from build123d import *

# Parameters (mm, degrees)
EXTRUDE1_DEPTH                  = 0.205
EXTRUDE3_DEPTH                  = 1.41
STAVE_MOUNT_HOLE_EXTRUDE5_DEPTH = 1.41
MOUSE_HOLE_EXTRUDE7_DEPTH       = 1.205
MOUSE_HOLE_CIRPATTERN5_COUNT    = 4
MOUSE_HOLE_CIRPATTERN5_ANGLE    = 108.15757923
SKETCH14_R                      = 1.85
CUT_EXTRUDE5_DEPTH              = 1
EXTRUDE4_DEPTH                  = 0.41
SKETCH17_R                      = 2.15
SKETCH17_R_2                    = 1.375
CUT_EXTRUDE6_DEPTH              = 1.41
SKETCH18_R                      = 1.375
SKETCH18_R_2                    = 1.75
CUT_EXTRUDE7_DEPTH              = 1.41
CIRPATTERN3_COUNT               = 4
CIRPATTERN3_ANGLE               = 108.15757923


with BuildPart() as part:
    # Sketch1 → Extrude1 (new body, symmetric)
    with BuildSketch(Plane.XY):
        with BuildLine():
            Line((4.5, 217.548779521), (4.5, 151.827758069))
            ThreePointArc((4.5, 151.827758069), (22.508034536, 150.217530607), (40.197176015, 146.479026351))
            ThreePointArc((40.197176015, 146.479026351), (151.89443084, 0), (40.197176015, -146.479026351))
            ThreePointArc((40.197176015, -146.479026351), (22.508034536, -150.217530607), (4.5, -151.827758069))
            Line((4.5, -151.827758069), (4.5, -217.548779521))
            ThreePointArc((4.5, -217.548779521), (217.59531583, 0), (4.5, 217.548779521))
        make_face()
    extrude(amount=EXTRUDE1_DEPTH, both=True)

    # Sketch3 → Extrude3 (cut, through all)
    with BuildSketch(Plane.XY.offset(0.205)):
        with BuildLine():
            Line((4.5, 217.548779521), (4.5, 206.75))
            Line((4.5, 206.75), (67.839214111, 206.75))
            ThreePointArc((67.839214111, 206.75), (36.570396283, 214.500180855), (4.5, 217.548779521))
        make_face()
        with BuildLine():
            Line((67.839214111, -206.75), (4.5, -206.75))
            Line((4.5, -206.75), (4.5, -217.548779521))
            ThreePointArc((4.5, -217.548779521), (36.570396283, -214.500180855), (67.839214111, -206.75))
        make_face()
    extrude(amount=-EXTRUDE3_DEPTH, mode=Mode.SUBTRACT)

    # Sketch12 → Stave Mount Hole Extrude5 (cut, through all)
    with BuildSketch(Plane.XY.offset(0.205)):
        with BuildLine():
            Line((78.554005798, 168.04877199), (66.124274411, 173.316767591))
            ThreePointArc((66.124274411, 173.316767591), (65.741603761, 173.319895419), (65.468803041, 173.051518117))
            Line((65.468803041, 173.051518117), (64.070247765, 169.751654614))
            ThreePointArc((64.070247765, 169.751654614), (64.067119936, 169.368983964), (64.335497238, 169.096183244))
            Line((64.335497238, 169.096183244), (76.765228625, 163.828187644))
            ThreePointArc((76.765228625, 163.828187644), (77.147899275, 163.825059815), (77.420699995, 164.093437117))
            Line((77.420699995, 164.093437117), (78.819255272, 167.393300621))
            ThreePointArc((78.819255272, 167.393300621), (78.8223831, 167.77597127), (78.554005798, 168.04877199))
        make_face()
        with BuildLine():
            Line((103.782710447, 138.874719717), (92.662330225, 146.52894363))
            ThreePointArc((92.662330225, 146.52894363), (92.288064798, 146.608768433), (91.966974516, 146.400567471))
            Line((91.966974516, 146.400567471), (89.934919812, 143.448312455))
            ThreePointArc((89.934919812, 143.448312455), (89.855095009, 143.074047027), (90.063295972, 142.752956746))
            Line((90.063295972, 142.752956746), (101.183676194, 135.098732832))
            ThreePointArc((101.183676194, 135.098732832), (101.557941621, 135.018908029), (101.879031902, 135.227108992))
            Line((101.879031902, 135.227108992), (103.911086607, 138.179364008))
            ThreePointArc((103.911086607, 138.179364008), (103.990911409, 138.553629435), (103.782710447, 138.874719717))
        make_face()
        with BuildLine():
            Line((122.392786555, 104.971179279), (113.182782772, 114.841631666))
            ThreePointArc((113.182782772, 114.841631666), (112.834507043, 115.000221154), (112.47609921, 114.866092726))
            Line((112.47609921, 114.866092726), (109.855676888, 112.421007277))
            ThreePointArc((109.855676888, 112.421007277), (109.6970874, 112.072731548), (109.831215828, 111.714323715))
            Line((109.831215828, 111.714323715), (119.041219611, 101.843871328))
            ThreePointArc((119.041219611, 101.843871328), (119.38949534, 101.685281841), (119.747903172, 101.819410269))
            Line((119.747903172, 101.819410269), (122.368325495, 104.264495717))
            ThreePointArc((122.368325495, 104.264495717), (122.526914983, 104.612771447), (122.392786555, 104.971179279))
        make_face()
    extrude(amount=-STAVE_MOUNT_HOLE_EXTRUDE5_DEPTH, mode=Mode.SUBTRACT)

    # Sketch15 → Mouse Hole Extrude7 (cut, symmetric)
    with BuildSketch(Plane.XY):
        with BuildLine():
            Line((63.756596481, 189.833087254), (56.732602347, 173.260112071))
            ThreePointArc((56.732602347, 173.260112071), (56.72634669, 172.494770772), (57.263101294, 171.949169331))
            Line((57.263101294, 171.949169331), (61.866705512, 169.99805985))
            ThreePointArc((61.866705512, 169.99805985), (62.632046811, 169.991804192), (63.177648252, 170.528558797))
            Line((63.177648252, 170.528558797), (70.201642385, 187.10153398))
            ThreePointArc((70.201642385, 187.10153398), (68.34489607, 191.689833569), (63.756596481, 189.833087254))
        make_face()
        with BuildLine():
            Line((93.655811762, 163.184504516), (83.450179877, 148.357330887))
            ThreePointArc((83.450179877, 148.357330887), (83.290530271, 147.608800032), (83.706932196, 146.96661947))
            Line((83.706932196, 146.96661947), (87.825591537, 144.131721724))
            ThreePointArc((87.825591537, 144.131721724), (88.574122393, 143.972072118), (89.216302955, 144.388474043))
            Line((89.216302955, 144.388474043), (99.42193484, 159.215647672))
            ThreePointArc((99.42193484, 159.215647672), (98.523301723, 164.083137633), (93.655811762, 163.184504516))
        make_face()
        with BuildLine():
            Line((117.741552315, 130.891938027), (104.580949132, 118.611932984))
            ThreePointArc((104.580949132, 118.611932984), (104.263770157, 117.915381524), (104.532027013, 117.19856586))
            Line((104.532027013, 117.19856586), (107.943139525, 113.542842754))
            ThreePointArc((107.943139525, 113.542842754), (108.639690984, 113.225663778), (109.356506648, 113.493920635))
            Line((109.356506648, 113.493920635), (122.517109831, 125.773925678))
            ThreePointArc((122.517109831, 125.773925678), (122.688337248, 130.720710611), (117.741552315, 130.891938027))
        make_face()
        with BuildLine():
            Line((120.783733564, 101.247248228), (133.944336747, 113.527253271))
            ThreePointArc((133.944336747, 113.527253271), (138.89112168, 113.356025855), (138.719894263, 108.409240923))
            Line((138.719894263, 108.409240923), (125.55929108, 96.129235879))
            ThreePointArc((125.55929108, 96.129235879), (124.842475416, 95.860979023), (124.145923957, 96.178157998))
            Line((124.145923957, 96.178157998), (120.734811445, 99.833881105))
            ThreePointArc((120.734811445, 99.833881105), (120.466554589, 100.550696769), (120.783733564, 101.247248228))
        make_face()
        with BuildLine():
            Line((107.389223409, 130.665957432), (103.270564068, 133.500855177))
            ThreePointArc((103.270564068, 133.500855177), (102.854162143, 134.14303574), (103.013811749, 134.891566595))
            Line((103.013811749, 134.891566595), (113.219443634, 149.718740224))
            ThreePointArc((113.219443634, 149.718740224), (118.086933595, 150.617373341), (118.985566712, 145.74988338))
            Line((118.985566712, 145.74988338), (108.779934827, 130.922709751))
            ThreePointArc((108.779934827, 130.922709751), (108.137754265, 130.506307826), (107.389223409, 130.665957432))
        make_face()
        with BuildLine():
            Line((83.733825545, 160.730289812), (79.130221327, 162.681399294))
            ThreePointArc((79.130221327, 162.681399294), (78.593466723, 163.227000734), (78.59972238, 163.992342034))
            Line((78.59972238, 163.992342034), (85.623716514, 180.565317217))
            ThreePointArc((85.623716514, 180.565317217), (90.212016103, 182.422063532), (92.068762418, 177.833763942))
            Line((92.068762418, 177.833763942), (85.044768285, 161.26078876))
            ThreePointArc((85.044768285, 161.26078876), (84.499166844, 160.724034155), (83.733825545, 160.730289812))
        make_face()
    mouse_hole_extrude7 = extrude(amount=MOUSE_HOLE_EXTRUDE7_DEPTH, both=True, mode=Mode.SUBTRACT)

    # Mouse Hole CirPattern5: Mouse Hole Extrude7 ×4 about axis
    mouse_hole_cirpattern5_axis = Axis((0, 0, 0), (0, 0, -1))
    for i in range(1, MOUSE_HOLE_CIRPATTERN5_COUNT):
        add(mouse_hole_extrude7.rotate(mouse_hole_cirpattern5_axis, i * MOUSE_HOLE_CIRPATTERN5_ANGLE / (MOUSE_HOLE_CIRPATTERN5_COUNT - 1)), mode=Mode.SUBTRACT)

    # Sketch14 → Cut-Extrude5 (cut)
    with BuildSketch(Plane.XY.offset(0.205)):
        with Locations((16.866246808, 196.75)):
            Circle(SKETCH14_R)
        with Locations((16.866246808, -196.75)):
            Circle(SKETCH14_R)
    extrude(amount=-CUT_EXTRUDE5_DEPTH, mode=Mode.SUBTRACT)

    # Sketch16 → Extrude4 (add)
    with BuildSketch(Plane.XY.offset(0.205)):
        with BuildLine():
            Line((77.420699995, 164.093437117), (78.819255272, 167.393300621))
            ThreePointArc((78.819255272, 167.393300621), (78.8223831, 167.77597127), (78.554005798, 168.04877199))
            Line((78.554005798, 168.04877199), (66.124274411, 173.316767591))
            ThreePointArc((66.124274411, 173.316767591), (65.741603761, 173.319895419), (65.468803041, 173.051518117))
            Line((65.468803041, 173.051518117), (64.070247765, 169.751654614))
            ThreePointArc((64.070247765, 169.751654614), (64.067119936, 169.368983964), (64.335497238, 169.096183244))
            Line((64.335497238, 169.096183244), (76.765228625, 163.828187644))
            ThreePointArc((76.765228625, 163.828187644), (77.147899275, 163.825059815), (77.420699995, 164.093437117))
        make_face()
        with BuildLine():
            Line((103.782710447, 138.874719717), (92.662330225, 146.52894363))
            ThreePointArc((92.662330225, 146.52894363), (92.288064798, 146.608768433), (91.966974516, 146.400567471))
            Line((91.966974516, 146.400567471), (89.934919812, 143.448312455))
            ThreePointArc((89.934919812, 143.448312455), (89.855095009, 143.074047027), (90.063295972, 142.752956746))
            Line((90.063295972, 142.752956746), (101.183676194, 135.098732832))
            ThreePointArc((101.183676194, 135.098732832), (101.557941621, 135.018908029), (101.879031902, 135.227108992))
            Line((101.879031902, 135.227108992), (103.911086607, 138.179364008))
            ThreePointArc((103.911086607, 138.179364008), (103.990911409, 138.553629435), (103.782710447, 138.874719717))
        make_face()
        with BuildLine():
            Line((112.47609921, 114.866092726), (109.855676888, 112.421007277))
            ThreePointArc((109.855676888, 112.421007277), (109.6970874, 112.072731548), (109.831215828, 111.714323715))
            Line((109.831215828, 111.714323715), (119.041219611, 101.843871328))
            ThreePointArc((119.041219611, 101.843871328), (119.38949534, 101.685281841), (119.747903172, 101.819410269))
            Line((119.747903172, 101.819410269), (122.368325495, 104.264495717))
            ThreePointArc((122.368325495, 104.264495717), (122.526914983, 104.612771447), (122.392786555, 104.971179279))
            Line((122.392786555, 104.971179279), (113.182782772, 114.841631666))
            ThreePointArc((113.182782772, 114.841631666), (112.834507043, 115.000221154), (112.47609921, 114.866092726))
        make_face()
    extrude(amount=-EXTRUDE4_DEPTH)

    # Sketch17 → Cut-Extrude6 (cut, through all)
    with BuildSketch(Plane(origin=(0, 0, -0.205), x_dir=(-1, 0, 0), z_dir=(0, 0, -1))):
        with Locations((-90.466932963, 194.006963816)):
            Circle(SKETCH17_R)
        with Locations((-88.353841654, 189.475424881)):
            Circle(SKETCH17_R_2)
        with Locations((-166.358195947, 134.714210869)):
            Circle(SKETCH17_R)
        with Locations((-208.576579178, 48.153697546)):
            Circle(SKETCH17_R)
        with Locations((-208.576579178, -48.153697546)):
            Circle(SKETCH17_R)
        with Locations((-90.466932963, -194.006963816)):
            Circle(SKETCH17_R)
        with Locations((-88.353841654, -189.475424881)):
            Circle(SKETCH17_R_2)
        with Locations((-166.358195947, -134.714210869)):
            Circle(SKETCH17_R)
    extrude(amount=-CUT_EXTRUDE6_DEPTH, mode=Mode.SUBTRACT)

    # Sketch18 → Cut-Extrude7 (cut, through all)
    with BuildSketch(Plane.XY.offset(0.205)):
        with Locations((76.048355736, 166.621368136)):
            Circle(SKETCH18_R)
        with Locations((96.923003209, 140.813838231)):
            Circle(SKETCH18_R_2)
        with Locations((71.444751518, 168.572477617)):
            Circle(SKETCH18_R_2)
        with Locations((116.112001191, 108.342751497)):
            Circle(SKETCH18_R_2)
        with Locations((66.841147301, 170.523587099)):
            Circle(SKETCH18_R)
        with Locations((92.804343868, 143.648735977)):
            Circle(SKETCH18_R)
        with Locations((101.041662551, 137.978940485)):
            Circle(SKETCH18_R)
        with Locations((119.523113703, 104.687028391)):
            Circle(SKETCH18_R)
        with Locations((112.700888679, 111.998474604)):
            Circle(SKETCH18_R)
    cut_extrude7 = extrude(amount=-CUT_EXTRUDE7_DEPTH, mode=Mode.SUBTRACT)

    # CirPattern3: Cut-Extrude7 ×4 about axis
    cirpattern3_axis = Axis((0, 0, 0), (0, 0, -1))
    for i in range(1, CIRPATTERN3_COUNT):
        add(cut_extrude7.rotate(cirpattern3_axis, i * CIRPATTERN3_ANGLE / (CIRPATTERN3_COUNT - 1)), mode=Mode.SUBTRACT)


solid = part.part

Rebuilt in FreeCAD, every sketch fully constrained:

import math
import FreeCAD as App
import Part
import Sketcher
from FreeCAD import Vector
Q = App.Units.Quantity

doc = App.newDocument("Part")
params = doc.addObject("Spreadsheet::Sheet", "Params")
for row, (alias, value) in enumerate([
    ("pad1_length", "0.41 mm"),
    ("sketch3_radius", "0.5 mm"),
    ("sketch3_length", "13.5 mm"),
    ("sketch4_radius", "1 mm"),
    ("sketch4_radius2", "3.5 mm"),
    ("sketch4_length", "18 mm"),
    ("pocket3_length", "2.41 mm"),
    ("sketch5_diameter", "3.7 mm"),
    ("pocket4_length", "1 mm"),
    ("sketch6_radius", "0.5 mm"),
    ("sketch6_length", "13.5 mm"),
    ("pad2_length", "0.41 mm"),
    ("sketch7_diameter", "4.3 mm"),
    ("sketch7_diameter2", "2.75 mm"),
    ("sketch8_diameter", "3.5 mm"),
    ("sketch8_diameter2", "2.75 mm"),
], start=1):
    params.set(f"A{row}", alias)
    params.set(f"B{row}", "=" + value)
    params.setAlias(f"B{row}", alias)

body = doc.addObject("PartDesign::Body", "Body")

# Sketch on XY plane
sketch1 = doc.addObject("Sketcher::SketchObject", "Sketch")
body.addObject(sketch1)
sketch1.AttachmentSupport = (doc.XY_Plane, [""])
sketch1.MapMode = "FlatFace"
sketch1.addGeometry([
    Part.LineSegment(Vector(4.5, 217.54878, 0), Vector(4.5, 151.827758, 0)),  # 0
    Part.ArcOfCircle(Part.Circle(Vector(0, 0, 0), Vector(0, 0, 1), 151.894431), math.radians(74.654502), math.radians(88.302316)),  # 1
    Part.ArcOfCircle(Part.Circle(Vector(0, 0, 0), Vector(0, 0, 1), 151.894431), math.radians(-74.654502), math.radians(74.654502)),  # 2
    Part.ArcOfCircle(Part.Circle(Vector(0, 0, 0), Vector(0, 0, 1), 151.894431), math.radians(-88.302316), math.radians(-74.654502)),  # 3
    Part.LineSegment(Vector(4.5, -151.827758, 0), Vector(4.5, -217.54878, 0)),  # 4
    Part.ArcOfCircle(Part.Circle(Vector(0, 0, 0), Vector(0, 0, 1), 217.595316), math.radians(-88.815005), math.radians(88.815005)),  # 5
], False)
sketch1.addConstraint([
    Sketcher.Constraint("Coincident", 0, 2, 1, 2),
    Sketcher.Constraint("Tangent", 1, 1, 2, 2),
    Sketcher.Constraint("Tangent", 2, 1, 3, 2),
    Sketcher.Constraint("Coincident", 3, 1, 4, 1),
    Sketcher.Constraint("Coincident", 4, 2, 5, 1),
    Sketcher.Constraint("Coincident", 5, 2, 0, 1),
    Sketcher.Constraint("Vertical", 0),
    Sketcher.Constraint("Vertical", 4),
    Sketcher.Constraint("Coincident", 1, 3, -1, 1),
    Sketcher.Constraint("Coincident", 3, 3, -1, 1),
    Sketcher.Constraint("Coincident", 5, 3, -1, 1),
    Sketcher.Constraint("Vertical", 1, 1, 2, 1),
    Sketcher.Constraint("Vertical", 0, 2, 3, 1),
    Sketcher.Constraint("DistanceX", -1, 1, 0, 2, Q("4.5 mm")),
    Sketcher.Constraint("Radius", 1, Q("151.894431 mm")),
    Sketcher.Constraint("Radius", 5, Q("217.595316 mm")),
    Sketcher.Constraint("DistanceY", 1, 1, 0, 2, Q("5.348732 mm")),
])
pad1 = doc.addObject("PartDesign::Pad", "Pad")
body.addObject(pad1)
pad1.Profile = sketch1
pad1.setExpression("Length", "Params.pad1_length")
pad1.Midplane = True

# Sketch on XY plane
sketch2 = doc.addObject("Sketcher::SketchObject", "Sketch001")
body.addObject(sketch2)
sketch2.AttachmentSupport = (doc.XY_Plane, [""])
sketch2.MapMode = "FlatFace"
sketch2.AttachmentOffset = App.Placement(Vector(0, 0, 0.205), App.Rotation())
sketch2.addGeometry([
    Part.LineSegment(Vector(4.5, 217.54878, 0), Vector(4.5, 206.75, 0)),  # 0
    Part.LineSegment(Vector(4.5, 206.75, 0), Vector(67.839214, 206.75, 0)),  # 1
    Part.ArcOfCircle(Part.Circle(Vector(0, 0, 0), Vector(0, 0, 1), 217.595316), math.radians(71.834201), math.radians(88.815005)),  # 2
    Part.LineSegment(Vector(67.839214, -206.75, 0), Vector(4.5, -206.75, 0)),  # 3
    Part.LineSegment(Vector(4.5, -206.75, 0), Vector(4.5, -217.54878, 0)),  # 4
    Part.ArcOfCircle(Part.Circle(Vector(0, 0, 0), Vector(0, 0, 1), 217.595316), math.radians(-88.815005), math.radians(-71.834201)),  # 5
], False)
sketch2.addConstraint([
    Sketcher.Constraint("Coincident", 0, 2, 1, 1),
    Sketcher.Constraint("Coincident", 1, 2, 2, 1),
    Sketcher.Constraint("Coincident", 2, 2, 0, 1),
    Sketcher.Constraint("Coincident", 3, 2, 4, 1),
    Sketcher.Constraint("Coincident", 4, 2, 5, 1),
    Sketcher.Constraint("Coincident", 5, 2, 3, 1),
    Sketcher.Constraint("Vertical", 0),
    Sketcher.Constraint("Horizontal", 1),
    Sketcher.Constraint("Horizontal", 3),
    Sketcher.Constraint("Vertical", 4),
    Sketcher.Constraint("Coincident", 2, 3, -1, 1),
    Sketcher.Constraint("Coincident", 5, 3, -1, 1),
    Sketcher.Constraint("Equal", 2, 5),
    Sketcher.Constraint("Symmetric", 0, 2, 3, 2, -1),
    Sketcher.Constraint("DistanceX", -1, 1, 0, 2, Q("4.5 mm")),
    Sketcher.Constraint("DistanceY", 3, 2, 0, 2, Q("413.5 mm")),
    Sketcher.Constraint("Radius", 2, Q("217.595316 mm")),
])
pocket1 = doc.addObject("PartDesign::Pocket", "Pocket")
body.addObject(pocket1)
pocket1.Profile = sketch2
pocket1.Type = "ThroughAll"

# Sketch on XY plane
sketch3 = doc.addObject("Sketcher::SketchObject", "Sketch002")
body.addObject(sketch3)
sketch3.AttachmentSupport = (doc.XY_Plane, [""])
sketch3.MapMode = "FlatFace"
sketch3.AttachmentOffset = App.Placement(Vector(0, 0, 0.205), App.Rotation())
sketch3.addGeometry([
    Part.LineSegment(Vector(78.554006, 168.048772, 0), Vector(66.124274, 173.316768, 0)),  # 0
    Part.ArcOfCircle(Part.Circle(Vector(65.929163, 172.856407, 0), Vector(0, 0, 1), 0.5), math.radians(67.031693), math.radians(157.031693)),  # 1
    Part.LineSegment(Vector(65.468803, 173.051518, 0), Vector(64.070248, 169.751655, 0)),  # 2
    Part.ArcOfCircle(Part.Circle(Vector(64.530608, 169.556544, 0), Vector(0, 0, 1), 0.5), math.radians(157.031693), math.radians(247.031693)),  # 3
    Part.LineSegment(Vector(64.335497, 169.096183, 0), Vector(76.765229, 163.828188, 0)),  # 4
    Part.ArcOfCircle(Part.Circle(Vector(76.96034, 164.288548, 0), Vector(0, 0, 1), 0.5), math.radians(-112.968307), math.radians(-22.968307)),  # 5
    Part.LineSegment(Vector(77.4207, 164.093437, 0), Vector(78.819255, 167.393301, 0)),  # 6
    Part.ArcOfCircle(Part.Circle(Vector(78.358895, 167.588412, 0), Vector(0, 0, 1), 0.5), math.radians(-22.968307), math.radians(67.031693)),  # 7
    Part.LineSegment(Vector(103.78271, 138.87472, 0), Vector(92.66233, 146.528944, 0)),  # 8
    Part.ArcOfCircle(Part.Circle(Vector(92.37884, 146.117078, 0), Vector(0, 0, 1), 0.5), math.radians(55.460132), math.radians(145.460132)),  # 9
    Part.LineSegment(Vector(91.966975, 146.400567, 0), Vector(89.93492, 143.448312, 0)),  # 10
    Part.ArcOfCircle(Part.Circle(Vector(90.346786, 143.164823, 0), Vector(0, 0, 1), 0.5), math.radians(145.460132), math.radians(235.460132)),  # 11
    Part.LineSegment(Vector(90.063296, 142.752957, 0), Vector(101.183676, 135.098733, 0)),  # 12
    Part.ArcOfCircle(Part.Circle(Vector(101.467166, 135.510599, 0), Vector(0, 0, 1), 0.5), math.radians(-124.539868), math.radians(-34.539868)),  # 13
    Part.LineSegment(Vector(101.879032, 135.227109, 0), Vector(103.911087, 138.179364, 0)),  # 14
    Part.ArcOfCircle(Part.Circle(Vector(103.499221, 138.462854, 0), Vector(0, 0, 1), 0.5), math.radians(-34.539868), math.radians(55.460132)),  # 15
    Part.LineSegment(Vector(122.392787, 104.971179, 0), Vector(113.182783, 114.841632, 0)),  # 16
    Part.ArcOfCircle(Part.Circle(Vector(112.81721, 114.50052, 0), Vector(0, 0, 1), 0.5), math.radians(43.017562), math.radians(133.017562)),  # 17
    Part.LineSegment(Vector(112.476099, 114.866093, 0), Vector(109.855677, 112.421007, 0)),  # 18
    Part.ArcOfCircle(Part.Circle(Vector(110.196788, 112.055435, 0), Vector(0, 0, 1), 0.5), math.radians(133.017562), math.radians(223.017562)),  # 19
    Part.LineSegment(Vector(109.831216, 111.714324, 0), Vector(119.04122, 101.843871, 0)),  # 20
    Part.ArcOfCircle(Part.Circle(Vector(119.406792, 102.184983, 0), Vector(0, 0, 1), 0.5), math.radians(-136.982438), math.radians(-46.982438)),  # 21
    Part.LineSegment(Vector(119.747903, 101.81941, 0), Vector(122.368325, 104.264496, 0)),  # 22
    Part.ArcOfCircle(Part.Circle(Vector(122.027214, 104.630068, 0), Vector(0, 0, 1), 0.5), math.radians(-46.982438), math.radians(43.017562)),  # 23
], False)
sketch3.addConstraint([
    Sketcher.Constraint("Tangent", 0, 2, 1, 1),
    Sketcher.Constraint("Tangent", 1, 2, 2, 1),
    Sketcher.Constraint("Tangent", 2, 2, 3, 1),
    Sketcher.Constraint("Tangent", 3, 2, 4, 1),
    Sketcher.Constraint("Tangent", 4, 2, 5, 1),
    Sketcher.Constraint("Tangent", 5, 2, 6, 1),
    Sketcher.Constraint("Tangent", 6, 2, 7, 1),
    Sketcher.Constraint("Tangent", 7, 2, 0, 1),
    Sketcher.Constraint("Tangent", 8, 2, 9, 1),
    Sketcher.Constraint("Tangent", 9, 2, 10, 1),
    Sketcher.Constraint("Tangent", 10, 2, 11, 1),
    Sketcher.Constraint("Tangent", 11, 2, 12, 1),
    Sketcher.Constraint("Tangent", 12, 2, 13, 1),
    Sketcher.Constraint("Tangent", 13, 2, 14, 1),
    Sketcher.Constraint("Tangent", 14, 2, 15, 1),
    Sketcher.Constraint("Tangent", 15, 2, 8, 1),
    Sketcher.Constraint("Tangent", 16, 2, 17, 1),
    Sketcher.Constraint("Tangent", 17, 2, 18, 1),
    Sketcher.Constraint("Tangent", 18, 2, 19, 1),
    Sketcher.Constraint("Tangent", 19, 2, 20, 1),
    Sketcher.Constraint("Tangent", 20, 2, 21, 1),
    Sketcher.Constraint("Tangent", 21, 2, 22, 1),
    Sketcher.Constraint("Tangent", 22, 2, 23, 1),
    Sketcher.Constraint("Tangent", 23, 2, 16, 1),
    Sketcher.Constraint("Equal", 1, 3),
    Sketcher.Constraint("Equal", 3, 5),
    Sketcher.Constraint("Equal", 5, 7),
    Sketcher.Constraint("Equal", 7, 9),
    Sketcher.Constraint("Equal", 9, 11),
    Sketcher.Constraint("Equal", 11, 13),
    Sketcher.Constraint("Equal", 13, 15),
    Sketcher.Constraint("Equal", 15, 17),
    Sketcher.Constraint("Equal", 17, 19),
    Sketcher.Constraint("Equal", 19, 21),
    Sketcher.Constraint("Equal", 21, 23),
    Sketcher.Constraint("Perpendicular", 0, 2),
    Sketcher.Constraint("Perpendicular", 2, 4),
    Sketcher.Constraint("Perpendicular", 4, 6),
    Sketcher.Constraint("Perpendicular", 8, 10),
    Sketcher.Constraint("Perpendicular", 10, 12),
    Sketcher.Constraint("Perpendicular", 12, 14),
    Sketcher.Constraint("Perpendicular", 16, 18),
    Sketcher.Constraint("Perpendicular", 18, 20),
    Sketcher.Constraint("Perpendicular", 20, 22),
    Sketcher.Constraint("Equal", 4, 8),
    Sketcher.Constraint("Equal", 6, 10),
    Sketcher.Constraint("Equal", 12, 16),
    Sketcher.Constraint("Equal", 14, 18),
    Sketcher.Constraint("Radius", 1, Q("0.5 mm")),
    Sketcher.Constraint("Distance", 0, Q("13.5 mm")),
    Sketcher.Constraint("Distance", 2, Q("3.584 mm")),
    Sketcher.Constraint("DistanceY", -1, 1, 13, 3, Q("135.510599 mm")),
    Sketcher.Constraint("DistanceX", -1, 1, 5, 2, Q("77.4207 mm")),
    Sketcher.Constraint("DistanceY", -1, 1, 6, 2, Q("167.393301 mm")),
    Sketcher.Constraint("DistanceX", -1, 1, 17, 2, Q("112.476099 mm")),
    Sketcher.Constraint("DistanceX", 5, 3, 9, 3, Q("15.418501 mm")),
    Sketcher.Constraint("DistanceX", -1, 1, 3, 3, Q("64.530608 mm")),
    Sketcher.Constraint("DistanceX", -1, 1, 15, 3, Q("103.499221 mm")),
    Sketcher.Constraint("DistanceX", -1, 1, 17, 3, Q("112.81721 mm")),
    Sketcher.Constraint("DistanceY", -1, 1, 17, 3, Q("114.50052 mm")),
])
sketch3.setExpression("Constraints[48]", "Params.sketch3_radius")
sketch3.setExpression("Constraints[49]", "Params.sketch3_length")
pocket2 = doc.addObject("PartDesign::Pocket", "Pocket001")
body.addObject(pocket2)
pocket2.Profile = sketch3
pocket2.Type = "ThroughAll"

# Sketch on XY plane
sketch4 = doc.addObject("Sketcher::SketchObject", "Sketch003")
body.addObject(sketch4)
sketch4.AttachmentSupport = (doc.XY_Plane, [""])
sketch4.MapMode = "FlatFace"
sketch4.addGeometry([
    Part.LineSegment(Vector(63.756596, 189.833087, 0), Vector(56.732602, 173.260112, 0)),  # 0
    Part.ArcOfCircle(Part.Circle(Vector(57.653323, 172.86989, 0), Vector(0, 0, 1), 1), math.radians(157.031693), math.radians(247.031693)),  # 1
    Part.LineSegment(Vector(57.263101, 171.949169, 0), Vector(61.866706, 169.99806, 0)),  # 2
    Part.ArcOfCircle(Part.Circle(Vector(62.256927, 170.918781, 0), Vector(0, 0, 1), 1), math.radians(-112.968307), math.radians(-22.968307)),  # 3
    Part.LineSegment(Vector(63.177648, 170.528559, 0), Vector(70.201642, 187.101534, 0)),  # 4
    Part.ArcOfCircle(Part.Circle(Vector(66.979119, 188.467311, 0), Vector(0, 0, 1), 3.5), math.radians(-22.968307), math.radians(157.031693)),  # 5
    Part.LineSegment(Vector(93.655812, 163.184505, 0), Vector(83.45018, 148.357331, 0)),  # 6
    Part.ArcOfCircle(Part.Circle(Vector(84.273912, 147.790351, 0), Vector(0, 0, 1), 1), math.radians(145.460132), math.radians(235.460132)),  # 7
    Part.LineSegment(Vector(83.706932, 146.966619, 0), Vector(87.825592, 144.131722, 0)),  # 8
    Part.ArcOfCircle(Part.Circle(Vector(88.392571, 144.955454, 0), Vector(0, 0, 1), 1), math.radians(-124.539868), math.radians(-34.539868)),  # 9
    Part.LineSegment(Vector(89.216303, 144.388474, 0), Vector(99.421935, 159.215648, 0)),  # 10
    Part.ArcOfCircle(Part.Circle(Vector(96.538873, 161.200076, 0), Vector(0, 0, 1), 3.5), math.radians(-34.539868), math.radians(145.460132)),  # 11
    Part.LineSegment(Vector(117.741552, 130.891938, 0), Vector(104.580949, 118.611933, 0)),  # 12
    Part.ArcOfCircle(Part.Circle(Vector(105.263172, 117.880788, 0), Vector(0, 0, 1), 1), math.radians(133.017562), math.radians(223.017562)),  # 13
    Part.LineSegment(Vector(104.532027, 117.198566, 0), Vector(107.94314, 113.542843, 0)),  # 14
    Part.ArcOfCircle(Part.Circle(Vector(108.674284, 114.225065, 0), Vector(0, 0, 1), 1), math.radians(-136.982438), math.radians(-46.982438)),  # 15
    Part.LineSegment(Vector(109.356507, 113.493921, 0), Vector(122.51711, 125.773926, 0)),  # 16
    Part.ArcOfCircle(Part.Circle(Vector(120.129331, 128.332932, 0), Vector(0, 0, 1), 3.5), math.radians(-46.982438), math.radians(133.017562)),  # 17
    Part.LineSegment(Vector(133.944337, 113.527253, 0), Vector(120.783734, 101.247248, 0)),  # 18
    Part.ArcOfCircle(Part.Circle(Vector(121.465956, 100.516104, 0), Vector(0, 0, 1), 1), math.radians(133.017562), math.radians(223.017562)),  # 19
    Part.LineSegment(Vector(120.734811, 99.833881, 0), Vector(124.145924, 96.178158, 0)),  # 20
    Part.ArcOfCircle(Part.Circle(Vector(124.877069, 96.860381, 0), Vector(0, 0, 1), 1), math.radians(-136.982438), math.radians(-46.982438)),  # 21
    Part.LineSegment(Vector(125.559291, 96.129236, 0), Vector(138.719894, 108.409241, 0)),  # 22
    Part.ArcOfCircle(Part.Circle(Vector(136.332116, 110.968247, 0), Vector(0, 0, 1), 3.5), math.radians(-46.982438), math.radians(133.017562)),  # 23
    Part.LineSegment(Vector(103.270564, 133.500855, 0), Vector(107.389223, 130.665957, 0)),  # 24
    Part.ArcOfCircle(Part.Circle(Vector(107.956203, 131.489689, 0), Vector(0, 0, 1), 1), math.radians(-124.539868), math.radians(-34.539868)),  # 25
    Part.LineSegment(Vector(108.779935, 130.92271, 0), Vector(118.985567, 145.749883, 0)),  # 26
    Part.ArcOfCircle(Part.Circle(Vector(116.102505, 147.734312, 0), Vector(0, 0, 1), 3.5), math.radians(-34.539868), math.radians(145.460132)),  # 27
    Part.LineSegment(Vector(113.219444, 149.71874, 0), Vector(103.013812, 134.891567, 0)),  # 28
    Part.ArcOfCircle(Part.Circle(Vector(103.837544, 134.324587, 0), Vector(0, 0, 1), 1), math.radians(145.460132), math.radians(235.460132)),  # 29
    Part.LineSegment(Vector(79.130221, 162.681399, 0), Vector(83.733826, 160.73029, 0)),  # 30
    Part.ArcOfCircle(Part.Circle(Vector(84.124047, 161.651011, 0), Vector(0, 0, 1), 1), math.radians(-112.968307), math.radians(-22.968307)),  # 31
    Part.LineSegment(Vector(85.044768, 161.260789, 0), Vector(92.068762, 177.833764, 0)),  # 32
    Part.ArcOfCircle(Part.Circle(Vector(88.846239, 179.199541, 0), Vector(0, 0, 1), 3.5), math.radians(-22.968307), math.radians(157.031693)),  # 33
    Part.LineSegment(Vector(85.623717, 180.565317, 0), Vector(78.599722, 163.992342, 0)),  # 34
    Part.ArcOfCircle(Part.Circle(Vector(79.520443, 163.60212, 0), Vector(0, 0, 1), 1), math.radians(157.031693), math.radians(247.031693)),  # 35
], False)
sketch4.addConstraint([
    Sketcher.Constraint("Tangent", 0, 2, 1, 1),
    Sketcher.Constraint("Tangent", 1, 2, 2, 1),
    Sketcher.Constraint("Tangent", 2, 2, 3, 1),
    Sketcher.Constraint("Tangent", 3, 2, 4, 1),
    Sketcher.Constraint("Tangent", 4, 2, 5, 1),
    Sketcher.Constraint("Tangent", 5, 2, 0, 1),
    Sketcher.Constraint("Tangent", 6, 2, 7, 1),
    Sketcher.Constraint("Tangent", 7, 2, 8, 1),
    Sketcher.Constraint("Tangent", 8, 2, 9, 1),
    Sketcher.Constraint("Tangent", 9, 2, 10, 1),
    Sketcher.Constraint("Tangent", 10, 2, 11, 1),
    Sketcher.Constraint("Tangent", 11, 2, 6, 1),
    Sketcher.Constraint("Tangent", 12, 2, 13, 1),
    Sketcher.Constraint("Tangent", 13, 2, 14, 1),
    Sketcher.Constraint("Tangent", 14, 2, 15, 1),
    Sketcher.Constraint("Tangent", 15, 2, 16, 1),
    Sketcher.Constraint("Tangent", 16, 2, 17, 1),
    Sketcher.Constraint("Tangent", 17, 2, 12, 1),
    Sketcher.Constraint("Tangent", 18, 2, 19, 1),
    Sketcher.Constraint("Tangent", 19, 2, 20, 1),
    Sketcher.Constraint("Tangent", 20, 2, 21, 1),
    Sketcher.Constraint("Tangent", 21, 2, 22, 1),
    Sketcher.Constraint("Tangent", 22, 2, 23, 1),
    Sketcher.Constraint("Tangent", 23, 2, 18, 1),
    Sketcher.Constraint("Tangent", 24, 2, 25, 1),
    Sketcher.Constraint("Tangent", 25, 2, 26, 1),
    Sketcher.Constraint("Tangent", 26, 2, 27, 1),
    Sketcher.Constraint("Tangent", 27, 2, 28, 1),
    Sketcher.Constraint("Tangent", 28, 2, 29, 1),
    Sketcher.Constraint("Tangent", 29, 2, 24, 1),
    Sketcher.Constraint("Tangent", 30, 2, 31, 1),
    Sketcher.Constraint("Tangent", 31, 2, 32, 1),
    Sketcher.Constraint("Tangent", 32, 2, 33, 1),
    Sketcher.Constraint("Tangent", 33, 2, 34, 1),
    Sketcher.Constraint("Tangent", 34, 2, 35, 1),
    Sketcher.Constraint("Tangent", 35, 2, 30, 1),
    Sketcher.Constraint("Equal", 1, 3),
    Sketcher.Constraint("Equal", 3, 7),
    Sketcher.Constraint("Equal", 7, 9),
    Sketcher.Constraint("Equal", 5, 11),
    Sketcher.Constraint("Equal", 9, 13),
    Sketcher.Constraint("Equal", 13, 15),
    Sketcher.Constraint("Equal", 11, 17),
    Sketcher.Constraint("Equal", 15, 19),
    Sketcher.Constraint("Equal", 19, 21),
    Sketcher.Constraint("Equal", 17, 23),
    Sketcher.Constraint("Equal", 21, 25),
    Sketcher.Constraint("Equal", 23, 27),
    Sketcher.Constraint("Equal", 25, 29),
    Sketcher.Constraint("Equal", 29, 31),
    Sketcher.Constraint("Equal", 27, 33),
    Sketcher.Constraint("Equal", 31, 35),
    Sketcher.Constraint("Perpendicular", 0, 2),
    Sketcher.Constraint("Perpendicular", 2, 4),
    Sketcher.Constraint("Perpendicular", 6, 8),
    Sketcher.Constraint("Perpendicular", 8, 10),
    Sketcher.Constraint("Perpendicular", 12, 14),
    Sketcher.Constraint("Perpendicular", 14, 16),
    Sketcher.Constraint("Parallel", 16, 18),
    Sketcher.Constraint("Perpendicular", 18, 20),
    Sketcher.Constraint("Perpendicular", 20, 22),
    Sketcher.Constraint("Perpendicular", 10, 24),
    Sketcher.Constraint("Perpendicular", 24, 26),
    Sketcher.Constraint("Parallel", 26, 28),
    Sketcher.Constraint("Perpendicular", 4, 30),
    Sketcher.Constraint("Perpendicular", 30, 32),
    Sketcher.Constraint("Parallel", 32, 34),
    Sketcher.Constraint("Equal", 4, 6),
    Sketcher.Constraint("Equal", 10, 12),
    Sketcher.Constraint("Equal", 16, 18),
    Sketcher.Constraint("Equal", 22, 26),
    Sketcher.Constraint("Equal", 28, 32),
    Sketcher.Constraint("Radius", 1, Q("1 mm")),
    Sketcher.Constraint("Radius", 5, Q("3.5 mm")),
    Sketcher.Constraint("Distance", 0, Q("18 mm")),
    Sketcher.Constraint("DistanceY", 12, 2, 17, 3, Q("9.720999 mm")),
    Sketcher.Constraint("DistanceX", -1, 1, 1, 2, Q("57.263101 mm")),
    Sketcher.Constraint("DistanceY", -1, 1, 35, 2, Q("162.681399 mm")),
    Sketcher.Constraint("DistanceX", 9, 3, 13, 3, Q("16.870601 mm")),
    Sketcher.Constraint("DistanceX", 11, 3, 13, 3, Q("8.724298 mm")),
    Sketcher.Constraint("DistanceY", 13, 3, 1, 3, Q("54.989102 mm")),
    Sketcher.Constraint("DistanceY", 13, 3, 25, 3, Q("13.608901 mm")),
    Sketcher.Constraint("DistanceY", 0, 2, 5, 3, Q("15.207199 mm")),
    Sketcher.Constraint("DistanceY", 31, 3, 0, 2, Q("11.609101 mm")),
    Sketcher.Constraint("DistanceY", 7, 2, 35, 3, Q("16.635501 mm")),
    Sketcher.Constraint("DistanceX", -1, 1, 7, 3, Q("84.273912 mm")),
    Sketcher.Constraint("DistanceX", -1, 1, 21, 3, Q("124.877069 mm")),
    Sketcher.Constraint("DistanceY", -1, 1, 21, 3, Q("96.860381 mm")),
    Sketcher.Constraint("DistanceX", -1, 1, 33, 3, Q("88.846239 mm")),
    Sketcher.Constraint("DistanceX", -1, 1, 28, 2, Q("103.013812 mm")),
])
sketch4.setExpression("Constraints[72]", "Params.sketch4_radius")
sketch4.setExpression("Constraints[73]", "Params.sketch4_radius2")
sketch4.setExpression("Constraints[74]", "Params.sketch4_length")
pocket3 = doc.addObject("PartDesign::Pocket", "Pocket002")
body.addObject(pocket3)
pocket3.Profile = sketch4
pocket3.setExpression("Length", "Params.pocket3_length")
pocket3.Midplane = True
doc.recompute()

polarpattern = doc.addObject("PartDesign::PolarPattern", "PolarPattern")
body.addObject(polarpattern)
polarpattern.Originals = [pocket3]
polarpattern.Axis = (doc.Z_Axis, [""])
polarpattern.Angle = 108.157579
polarpattern.Occurrences = 4
polarpattern.Reversed = True
body.Tip = polarpattern

# Sketch on XY plane
sketch5 = doc.addObject("Sketcher::SketchObject", "Sketch004")
body.addObject(sketch5)
sketch5.AttachmentSupport = (doc.XY_Plane, [""])
sketch5.MapMode = "FlatFace"
sketch5.AttachmentOffset = App.Placement(Vector(0, 0, 0.205), App.Rotation())
sketch5.addGeometry([
    Part.Circle(Vector(16.866247, 196.75, 0), Vector(0, 0, 1), 1.85),
    Part.Circle(Vector(16.866247, -196.75, 0), Vector(0, 0, 1), 1.85),
], False)
sketch5.addConstraint([
    Sketcher.Constraint("Equal", 0, 1),
    Sketcher.Constraint("Symmetric", 0, 3, 1, 3, -1),
    Sketcher.Constraint("Diameter", 0, Q("3.7 mm")),
    Sketcher.Constraint("DistanceY", 1, 3, 0, 3, Q("393.5 mm")),
    Sketcher.Constraint("DistanceX", -1, 1, 0, 3, Q("16.866247 mm")),
])
sketch5.setExpression("Constraints[2]", "Params.sketch5_diameter")
pocket4 = doc.addObject("PartDesign::Pocket", "Pocket003")
body.addObject(pocket4)
pocket4.Profile = sketch5
pocket4.setExpression("Length", "Params.pocket4_length")

# Sketch on XY plane
sketch6 = doc.addObject("Sketcher::SketchObject", "Sketch005")
body.addObject(sketch6)
sketch6.AttachmentSupport = (doc.XY_Plane, [""])
sketch6.MapMode = "FlatFace"
sketch6.AttachmentOffset = App.Placement(Vector(0, 0, 0.205), App.Rotation())
sketch6.addGeometry([
    Part.LineSegment(Vector(77.4207, 164.093437, 0), Vector(78.819255, 167.393301, 0)),  # 0
    Part.ArcOfCircle(Part.Circle(Vector(78.358895, 167.588412, 0), Vector(0, 0, 1), 0.5), math.radians(-22.968307), math.radians(67.031693)),  # 1
    Part.LineSegment(Vector(78.554006, 168.048772, 0), Vector(66.124274, 173.316768, 0)),  # 2
    Part.ArcOfCircle(Part.Circle(Vector(65.929163, 172.856407, 0), Vector(0, 0, 1), 0.5), math.radians(67.031693), math.radians(157.031693)),  # 3
    Part.LineSegment(Vector(65.468803, 173.051518, 0), Vector(64.070248, 169.751655, 0)),  # 4
    Part.ArcOfCircle(Part.Circle(Vector(64.530608, 169.556544, 0), Vector(0, 0, 1), 0.5), math.radians(157.031693), math.radians(247.031693)),  # 5
    Part.LineSegment(Vector(64.335497, 169.096183, 0), Vector(76.765229, 163.828188, 0)),  # 6
    Part.ArcOfCircle(Part.Circle(Vector(76.96034, 164.288548, 0), Vector(0, 0, 1), 0.5), math.radians(-112.968307), math.radians(-22.968307)),  # 7
    Part.LineSegment(Vector(103.78271, 138.87472, 0), Vector(92.66233, 146.528944, 0)),  # 8
    Part.ArcOfCircle(Part.Circle(Vector(92.37884, 146.117078, 0), Vector(0, 0, 1), 0.5), math.radians(55.460132), math.radians(145.460132)),  # 9
    Part.LineSegment(Vector(91.966975, 146.400567, 0), Vector(89.93492, 143.448312, 0)),  # 10
    Part.ArcOfCircle(Part.Circle(Vector(90.346786, 143.164823, 0), Vector(0, 0, 1), 0.5), math.radians(145.460132), math.radians(235.460132)),  # 11
    Part.LineSegment(Vector(90.063296, 142.752957, 0), Vector(101.183676, 135.098733, 0)),  # 12
    Part.ArcOfCircle(Part.Circle(Vector(101.467166, 135.510599, 0), Vector(0, 0, 1), 0.5), math.radians(-124.539868), math.radians(-34.539868)),  # 13
    Part.LineSegment(Vector(101.879032, 135.227109, 0), Vector(103.911087, 138.179364, 0)),  # 14
    Part.ArcOfCircle(Part.Circle(Vector(103.499221, 138.462854, 0), Vector(0, 0, 1), 0.5), math.radians(-34.539868), math.radians(55.460132)),  # 15
    Part.LineSegment(Vector(112.476099, 114.866093, 0), Vector(109.855677, 112.421007, 0)),  # 16
    Part.ArcOfCircle(Part.Circle(Vector(110.196788, 112.055435, 0), Vector(0, 0, 1), 0.5), math.radians(133.017562), math.radians(223.017562)),  # 17
    Part.LineSegment(Vector(109.831216, 111.714324, 0), Vector(119.04122, 101.843871, 0)),  # 18
    Part.ArcOfCircle(Part.Circle(Vector(119.406792, 102.184983, 0), Vector(0, 0, 1), 0.5), math.radians(-136.982438), math.radians(-46.982438)),  # 19
    Part.LineSegment(Vector(119.747903, 101.81941, 0), Vector(122.368325, 104.264496, 0)),  # 20
    Part.ArcOfCircle(Part.Circle(Vector(122.027214, 104.630068, 0), Vector(0, 0, 1), 0.5), math.radians(-46.982438), math.radians(43.017562)),  # 21
    Part.LineSegment(Vector(122.392787, 104.971179, 0), Vector(113.182783, 114.841632, 0)),  # 22
    Part.ArcOfCircle(Part.Circle(Vector(112.81721, 114.50052, 0), Vector(0, 0, 1), 0.5), math.radians(43.017562), math.radians(133.017562)),  # 23
], False)
sketch6.addConstraint([
    Sketcher.Constraint("Tangent", 0, 2, 1, 1),
    Sketcher.Constraint("Tangent", 1, 2, 2, 1),
    Sketcher.Constraint("Tangent", 2, 2, 3, 1),
    Sketcher.Constraint("Tangent", 3, 2, 4, 1),
    Sketcher.Constraint("Tangent", 4, 2, 5, 1),
    Sketcher.Constraint("Tangent", 5, 2, 6, 1),
    Sketcher.Constraint("Tangent", 6, 2, 7, 1),
    Sketcher.Constraint("Tangent", 7, 2, 0, 1),
    Sketcher.Constraint("Tangent", 8, 2, 9, 1),
    Sketcher.Constraint("Tangent", 9, 2, 10, 1),
    Sketcher.Constraint("Tangent", 10, 2, 11, 1),
    Sketcher.Constraint("Tangent", 11, 2, 12, 1),
    Sketcher.Constraint("Tangent", 12, 2, 13, 1),
    Sketcher.Constraint("Tangent", 13, 2, 14, 1),
    Sketcher.Constraint("Tangent", 14, 2, 15, 1),
    Sketcher.Constraint("Tangent", 15, 2, 8, 1),
    Sketcher.Constraint("Tangent", 16, 2, 17, 1),
    Sketcher.Constraint("Tangent", 17, 2, 18, 1),
    Sketcher.Constraint("Tangent", 18, 2, 19, 1),
    Sketcher.Constraint("Tangent", 19, 2, 20, 1),
    Sketcher.Constraint("Tangent", 20, 2, 21, 1),
    Sketcher.Constraint("Tangent", 21, 2, 22, 1),
    Sketcher.Constraint("Tangent", 22, 2, 23, 1),
    Sketcher.Constraint("Tangent", 23, 2, 16, 1),
    Sketcher.Constraint("Equal", 1, 3),
    Sketcher.Constraint("Equal", 3, 5),
    Sketcher.Constraint("Equal", 5, 7),
    Sketcher.Constraint("Equal", 7, 9),
    Sketcher.Constraint("Equal", 9, 11),
    Sketcher.Constraint("Equal", 11, 13),
    Sketcher.Constraint("Equal", 13, 15),
    Sketcher.Constraint("Equal", 15, 17),
    Sketcher.Constraint("Equal", 17, 19),
    Sketcher.Constraint("Equal", 19, 21),
    Sketcher.Constraint("Equal", 21, 23),
    Sketcher.Constraint("Perpendicular", 0, 2),
    Sketcher.Constraint("Perpendicular", 2, 4),
    Sketcher.Constraint("Perpendicular", 4, 6),
    Sketcher.Constraint("Perpendicular", 8, 10),
    Sketcher.Constraint("Perpendicular", 10, 12),
    Sketcher.Constraint("Perpendicular", 12, 14),
    Sketcher.Constraint("Perpendicular", 16, 18),
    Sketcher.Constraint("Perpendicular", 18, 20),
    Sketcher.Constraint("Perpendicular", 20, 22),
    Sketcher.Constraint("Equal", 6, 8),
    Sketcher.Constraint("Equal", 4, 10),
    Sketcher.Constraint("Equal", 14, 16),
    Sketcher.Constraint("Equal", 12, 18),
    Sketcher.Constraint("Radius", 1, Q("0.5 mm")),
    Sketcher.Constraint("Distance", 2, Q("13.5 mm")),
    Sketcher.Constraint("Distance", 0, Q("3.584 mm")),
    Sketcher.Constraint("DistanceX", 17, 2, 21, 3, Q("12.195998 mm")),
    Sketcher.Constraint("DistanceY", -1, 1, 13, 3, Q("135.510599 mm")),
    Sketcher.Constraint("DistanceY", -1, 1, 0, 2, Q("167.393301 mm")),
    Sketcher.Constraint("DistanceX", -1, 1, 7, 2, Q("77.4207 mm")),
    Sketcher.Constraint("DistanceX", -1, 1, 23, 2, Q("112.476099 mm")),
    Sketcher.Constraint("DistanceX", 7, 3, 9, 3, Q("15.418501 mm")),
    Sketcher.Constraint("DistanceY", 16, 2, 13, 2, Q("22.806102 mm")),
    Sketcher.Constraint("DistanceY", -1, 1, 1, 3, Q("167.588412 mm")),
    Sketcher.Constraint("DistanceX", -1, 1, 15, 3, Q("103.499221 mm")),
])
sketch6.setExpression("Constraints[48]", "Params.sketch6_radius")
sketch6.setExpression("Constraints[49]", "Params.sketch6_length")
pad2 = doc.addObject("PartDesign::Pad", "Pad001")
body.addObject(pad2)
pad2.Profile = sketch6
pad2.setExpression("Length", "Params.pad2_length")
pad2.Reversed = True

# Sketch on XY plane
sketch7 = doc.addObject("Sketcher::SketchObject", "Sketch006")
body.addObject(sketch7)
sketch7.AttachmentSupport = (doc.XY_Plane, [""])
sketch7.MapMode = "FlatFace"
sketch7.AttachmentOffset = App.Placement(Vector(0, 0, -0.205), App.Rotation())
sketch7.addGeometry([
    Part.Circle(Vector(90.466933, 194.006964, 0), Vector(0, 0, 1), 2.15),  # 0
    Part.Circle(Vector(88.353842, 189.475425, 0), Vector(0, 0, 1), 1.375),  # 1
    Part.Circle(Vector(166.358196, 134.714211, 0), Vector(0, 0, 1), 2.15),  # 2
    Part.Circle(Vector(208.576579, 48.153698, 0), Vector(0, 0, 1), 2.15),  # 3
    Part.Circle(Vector(208.576579, -48.153698, 0), Vector(0, 0, 1), 2.15),  # 4
    Part.Circle(Vector(90.466933, -194.006964, 0), Vector(0, 0, 1), 2.15),  # 5
    Part.Circle(Vector(88.353842, -189.475425, 0), Vector(0, 0, 1), 1.375),  # 6
    Part.Circle(Vector(166.358196, -134.714211, 0), Vector(0, 0, 1), 2.15),  # 7
], False)
sketch7.addConstraint([
    Sketcher.Constraint("Equal", 0, 2),
    Sketcher.Constraint("Equal", 2, 3),
    Sketcher.Constraint("Equal", 3, 4),
    Sketcher.Constraint("Equal", 4, 5),
    Sketcher.Constraint("Equal", 1, 6),
    Sketcher.Constraint("Equal", 5, 7),
    Sketcher.Constraint("Symmetric", 3, 3, 4, 3, -1),
    Sketcher.Constraint("Symmetric", 0, 3, 5, 3, -1),
    Sketcher.Constraint("Symmetric", 1, 3, 6, 3, -1),
    Sketcher.Constraint("Symmetric", 2, 3, 7, 3, -1),
    Sketcher.Constraint("Diameter", 0, Q("4.3 mm")),
    Sketcher.Constraint("Diameter", 1, Q("2.75 mm")),
    Sketcher.Constraint("DistanceX", -1, 1, 1, 3, Q("88.353842 mm")),
    Sketcher.Constraint("DistanceY", -1, 1, 2, 3, Q("134.714211 mm")),
    Sketcher.Constraint("DistanceX", -1, 1, 3, 3, Q("208.576579 mm")),
    Sketcher.Constraint("DistanceX", 1, 3, 0, 3, Q("2.113091 mm")),
    Sketcher.Constraint("DistanceY", 1, 3, 0, 3, Q("4.531539 mm")),
    Sketcher.Constraint("DistanceY", 4, 3, 2, 3, Q("182.867908 mm")),
    Sketcher.Constraint("DistanceY", 4, 3, 0, 3, Q("242.160661 mm")),
    Sketcher.Constraint("DistanceX", -1, 1, 2, 3, Q("166.358196 mm")),
])
sketch7.setExpression("Constraints[10]", "Params.sketch7_diameter")
sketch7.setExpression("Constraints[11]", "Params.sketch7_diameter2")
pocket5 = doc.addObject("PartDesign::Pocket", "Pocket004")
body.addObject(pocket5)
pocket5.Profile = sketch7
pocket5.Type = "ThroughAll"
pocket5.Reversed = True

# Sketch on XY plane
sketch8 = doc.addObject("Sketcher::SketchObject", "Sketch007")
body.addObject(sketch8)
sketch8.AttachmentSupport = (doc.XY_Plane, [""])
sketch8.MapMode = "FlatFace"
sketch8.AttachmentOffset = App.Placement(Vector(0, 0, 0.205), App.Rotation())
sketch8.addGeometry([
    Part.Circle(Vector(76.048356, 166.621368, 0), Vector(0, 0, 1), 1.375),  # 0
    Part.Circle(Vector(96.923003, 140.813838, 0), Vector(0, 0, 1), 1.75),  # 1
    Part.Circle(Vector(71.444752, 168.572478, 0), Vector(0, 0, 1), 1.75),  # 2
    Part.Circle(Vector(116.112001, 108.342751, 0), Vector(0, 0, 1), 1.75),  # 3
    Part.Circle(Vector(66.841147, 170.523587, 0), Vector(0, 0, 1), 1.375),  # 4
    Part.Circle(Vector(92.804344, 143.648736, 0), Vector(0, 0, 1), 1.375),  # 5
    Part.Circle(Vector(101.041663, 137.97894, 0), Vector(0, 0, 1), 1.375),  # 6
    Part.Circle(Vector(119.523114, 104.687028, 0), Vector(0, 0, 1), 1.375),  # 7
    Part.Circle(Vector(112.700889, 111.998475, 0), Vector(0, 0, 1), 1.375),  # 8
], False)
sketch8.addConstraint([
    Sketcher.Constraint("Equal", 1, 2),
    Sketcher.Constraint("Equal", 2, 3),
    Sketcher.Constraint("Equal", 0, 4),
    Sketcher.Constraint("Equal", 4, 5),
    Sketcher.Constraint("Equal", 5, 6),
    Sketcher.Constraint("Equal", 6, 7),
    Sketcher.Constraint("Equal", 7, 8),
    Sketcher.Constraint("Diameter", 1, Q("3.5 mm")),
    Sketcher.Constraint("Diameter", 0, Q("2.75 mm")),
    Sketcher.Constraint("DistanceX", -1, 1, 3, 3, Q("116.112001 mm")),
    Sketcher.Constraint("DistanceY", -1, 1, 0, 3, Q("166.621368 mm")),
    Sketcher.Constraint("DistanceY", -1, 1, 1, 3, Q("140.813838 mm")),
    Sketcher.Constraint("DistanceX", -1, 1, 2, 3, Q("71.444752 mm")),
    Sketcher.Constraint("DistanceY", -1, 1, 3, 3, Q("108.342751 mm")),
    Sketcher.Constraint("DistanceY", -1, 1, 6, 3, Q("137.97894 mm")),
    Sketcher.Constraint("DistanceY", -1, 1, 7, 3, Q("104.687028 mm")),
    Sketcher.Constraint("DistanceX", -1, 1, 8, 3, Q("112.700889 mm")),
    Sketcher.Constraint("DistanceY", 0, 3, 2, 3, Q("1.951109 mm")),
    Sketcher.Constraint("DistanceX", 2, 3, 1, 3, Q("25.478252 mm")),
    Sketcher.Constraint("DistanceY", 2, 3, 4, 3, Q("1.951109 mm")),
    Sketcher.Constraint("DistanceX", 4, 3, 0, 3, Q("9.207208 mm")),
    Sketcher.Constraint("DistanceX", 5, 3, 1, 3, Q("4.118659 mm")),
    Sketcher.Constraint("DistanceX", 0, 3, 5, 3, Q("16.755988 mm")),
    Sketcher.Constraint("DistanceY", 5, 3, 2, 3, Q("24.923742 mm")),
    Sketcher.Constraint("DistanceX", 1, 3, 6, 3, Q("4.118659 mm")),
    Sketcher.Constraint("DistanceX", 6, 3, 7, 3, Q("18.481451 mm")),
    Sketcher.Constraint("DistanceY", 8, 3, 5, 3, Q("31.650261 mm")),
])
sketch8.setExpression("Constraints[7]", "Params.sketch8_diameter")
sketch8.setExpression("Constraints[8]", "Params.sketch8_diameter2")
pocket6 = doc.addObject("PartDesign::Pocket", "Pocket005")
body.addObject(pocket6)
pocket6.Profile = sketch8
pocket6.Type = "ThroughAll"
doc.recompute()

polarpattern2 = doc.addObject("PartDesign::PolarPattern", "PolarPattern001")
body.addObject(polarpattern2)
polarpattern2.Originals = [pocket6]
polarpattern2.Axis = (doc.Z_Axis, [""])
polarpattern2.Angle = 108.157579
polarpattern2.Occurrences = 4
polarpattern2.Reversed = True
body.Tip = polarpattern2

doc.recompute()
